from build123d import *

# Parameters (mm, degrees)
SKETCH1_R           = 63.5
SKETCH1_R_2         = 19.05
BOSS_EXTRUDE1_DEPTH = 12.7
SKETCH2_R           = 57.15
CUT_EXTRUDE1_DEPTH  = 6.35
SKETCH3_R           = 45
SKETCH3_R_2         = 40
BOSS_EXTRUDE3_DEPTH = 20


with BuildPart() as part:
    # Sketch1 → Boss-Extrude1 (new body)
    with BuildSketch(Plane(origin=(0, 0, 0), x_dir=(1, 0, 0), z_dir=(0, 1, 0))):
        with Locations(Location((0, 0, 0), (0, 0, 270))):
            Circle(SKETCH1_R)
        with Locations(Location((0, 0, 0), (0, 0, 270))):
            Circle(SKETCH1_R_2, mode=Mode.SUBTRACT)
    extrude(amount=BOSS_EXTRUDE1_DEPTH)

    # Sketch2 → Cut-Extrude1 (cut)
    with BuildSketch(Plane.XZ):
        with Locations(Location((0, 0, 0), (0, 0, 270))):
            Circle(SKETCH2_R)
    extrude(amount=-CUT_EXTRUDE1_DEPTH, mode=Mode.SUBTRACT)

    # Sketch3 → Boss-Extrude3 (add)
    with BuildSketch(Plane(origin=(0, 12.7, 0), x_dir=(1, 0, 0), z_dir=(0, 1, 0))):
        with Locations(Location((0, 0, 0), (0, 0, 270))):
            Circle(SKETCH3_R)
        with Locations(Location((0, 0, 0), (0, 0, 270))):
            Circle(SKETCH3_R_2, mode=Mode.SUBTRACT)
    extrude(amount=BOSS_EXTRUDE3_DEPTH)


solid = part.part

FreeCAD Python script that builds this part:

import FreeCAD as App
import Part
import Sketcher
Q = App.Units.Quantity

doc = App.newDocument("Part")
body = doc.addObject("PartDesign::Body", "Body")

sketch1 = body.newObject("Sketcher::SketchObject", "Sketch")
sketch1.AttachmentSupport = (doc.getObject("XZ_Plane"), [""])
sketch1.MapMode = "FlatFace"
sketch1.addGeometry(Part.Circle(App.Vector(0, 0, 0), App.Vector(0, 0, 1), 64), False)
sketch1.addGeometry(Part.Circle(App.Vector(0, 0, 0), App.Vector(0, 0, 1), 19), False)
sketch1.addConstraint(Sketcher.Constraint("Coincident", 0, 3, -1, 1))
sketch1.addConstraint(Sketcher.Constraint("Coincident", 1, 3, -1, 1))
sketch1.addConstraint(Sketcher.Constraint("Diameter", 0, Q("5 in")))
sketch1.addConstraint(Sketcher.Constraint("Diameter", 1, Q("1.5 in")))
pad1 = body.newObject("PartDesign::Pad", "Pad")
pad1.Profile = sketch1
pad1.Length = Q("0.5 in")
pad1.Reversed = True

sketch2 = body.newObject("Sketcher::SketchObject", "Sketch001")
sketch2.AttachmentSupport = (doc.getObject("XZ_Plane"), [""])
sketch2.MapMode = "FlatFace"
sketch2.addGeometry(Part.Circle(App.Vector(0, 0, 0), App.Vector(0, 0, 1), 57), False)
sketch2.addConstraint(Sketcher.Constraint("Coincident", 0, 3, -1, 1))
sketch2.addConstraint(Sketcher.Constraint("Diameter", 0, Q("4.5 in")))
pocket1 = body.newObject("PartDesign::Pocket", "Pocket")
pocket1.Profile = sketch2
pocket1.Length = Q("0.25 in")

sketch3 = body.newObject("Sketcher::SketchObject", "Sketch002")
sketch3.AttachmentSupport = (doc.getObject("XZ_Plane"), [""])
sketch3.MapMode = "FlatFace"
sketch3.AttachmentOffset = App.Placement(App.Vector(0, 0, -0.5 * 25.4), App.Rotation())
sketch3.addGeometry(Part.Circle(App.Vector(0, 0, 0), App.Vector(0, 0, 1), 45), False)
sketch3.addGeometry(Part.Circle(App.Vector(0, 0, 0), App.Vector(0, 0, 1), 40), False)
sketch3.addConstraint(Sketcher.Constraint("Coincident", 0, 3, -1, 1))
sketch3.addConstraint(Sketcher.Constraint("Coincident", 1, 3, -1, 1))
sketch3.addConstraint(Sketcher.Constraint("Diameter", 0, 90.0))
sketch3.addConstraint(Sketcher.Constraint("Diameter", 1, 80.0))
pad2 = body.newObject("PartDesign::Pad", "Pad001")
pad2.Profile = sketch3
pad2.Length = 20
pad2.Reversed = True

doc.recompute()
